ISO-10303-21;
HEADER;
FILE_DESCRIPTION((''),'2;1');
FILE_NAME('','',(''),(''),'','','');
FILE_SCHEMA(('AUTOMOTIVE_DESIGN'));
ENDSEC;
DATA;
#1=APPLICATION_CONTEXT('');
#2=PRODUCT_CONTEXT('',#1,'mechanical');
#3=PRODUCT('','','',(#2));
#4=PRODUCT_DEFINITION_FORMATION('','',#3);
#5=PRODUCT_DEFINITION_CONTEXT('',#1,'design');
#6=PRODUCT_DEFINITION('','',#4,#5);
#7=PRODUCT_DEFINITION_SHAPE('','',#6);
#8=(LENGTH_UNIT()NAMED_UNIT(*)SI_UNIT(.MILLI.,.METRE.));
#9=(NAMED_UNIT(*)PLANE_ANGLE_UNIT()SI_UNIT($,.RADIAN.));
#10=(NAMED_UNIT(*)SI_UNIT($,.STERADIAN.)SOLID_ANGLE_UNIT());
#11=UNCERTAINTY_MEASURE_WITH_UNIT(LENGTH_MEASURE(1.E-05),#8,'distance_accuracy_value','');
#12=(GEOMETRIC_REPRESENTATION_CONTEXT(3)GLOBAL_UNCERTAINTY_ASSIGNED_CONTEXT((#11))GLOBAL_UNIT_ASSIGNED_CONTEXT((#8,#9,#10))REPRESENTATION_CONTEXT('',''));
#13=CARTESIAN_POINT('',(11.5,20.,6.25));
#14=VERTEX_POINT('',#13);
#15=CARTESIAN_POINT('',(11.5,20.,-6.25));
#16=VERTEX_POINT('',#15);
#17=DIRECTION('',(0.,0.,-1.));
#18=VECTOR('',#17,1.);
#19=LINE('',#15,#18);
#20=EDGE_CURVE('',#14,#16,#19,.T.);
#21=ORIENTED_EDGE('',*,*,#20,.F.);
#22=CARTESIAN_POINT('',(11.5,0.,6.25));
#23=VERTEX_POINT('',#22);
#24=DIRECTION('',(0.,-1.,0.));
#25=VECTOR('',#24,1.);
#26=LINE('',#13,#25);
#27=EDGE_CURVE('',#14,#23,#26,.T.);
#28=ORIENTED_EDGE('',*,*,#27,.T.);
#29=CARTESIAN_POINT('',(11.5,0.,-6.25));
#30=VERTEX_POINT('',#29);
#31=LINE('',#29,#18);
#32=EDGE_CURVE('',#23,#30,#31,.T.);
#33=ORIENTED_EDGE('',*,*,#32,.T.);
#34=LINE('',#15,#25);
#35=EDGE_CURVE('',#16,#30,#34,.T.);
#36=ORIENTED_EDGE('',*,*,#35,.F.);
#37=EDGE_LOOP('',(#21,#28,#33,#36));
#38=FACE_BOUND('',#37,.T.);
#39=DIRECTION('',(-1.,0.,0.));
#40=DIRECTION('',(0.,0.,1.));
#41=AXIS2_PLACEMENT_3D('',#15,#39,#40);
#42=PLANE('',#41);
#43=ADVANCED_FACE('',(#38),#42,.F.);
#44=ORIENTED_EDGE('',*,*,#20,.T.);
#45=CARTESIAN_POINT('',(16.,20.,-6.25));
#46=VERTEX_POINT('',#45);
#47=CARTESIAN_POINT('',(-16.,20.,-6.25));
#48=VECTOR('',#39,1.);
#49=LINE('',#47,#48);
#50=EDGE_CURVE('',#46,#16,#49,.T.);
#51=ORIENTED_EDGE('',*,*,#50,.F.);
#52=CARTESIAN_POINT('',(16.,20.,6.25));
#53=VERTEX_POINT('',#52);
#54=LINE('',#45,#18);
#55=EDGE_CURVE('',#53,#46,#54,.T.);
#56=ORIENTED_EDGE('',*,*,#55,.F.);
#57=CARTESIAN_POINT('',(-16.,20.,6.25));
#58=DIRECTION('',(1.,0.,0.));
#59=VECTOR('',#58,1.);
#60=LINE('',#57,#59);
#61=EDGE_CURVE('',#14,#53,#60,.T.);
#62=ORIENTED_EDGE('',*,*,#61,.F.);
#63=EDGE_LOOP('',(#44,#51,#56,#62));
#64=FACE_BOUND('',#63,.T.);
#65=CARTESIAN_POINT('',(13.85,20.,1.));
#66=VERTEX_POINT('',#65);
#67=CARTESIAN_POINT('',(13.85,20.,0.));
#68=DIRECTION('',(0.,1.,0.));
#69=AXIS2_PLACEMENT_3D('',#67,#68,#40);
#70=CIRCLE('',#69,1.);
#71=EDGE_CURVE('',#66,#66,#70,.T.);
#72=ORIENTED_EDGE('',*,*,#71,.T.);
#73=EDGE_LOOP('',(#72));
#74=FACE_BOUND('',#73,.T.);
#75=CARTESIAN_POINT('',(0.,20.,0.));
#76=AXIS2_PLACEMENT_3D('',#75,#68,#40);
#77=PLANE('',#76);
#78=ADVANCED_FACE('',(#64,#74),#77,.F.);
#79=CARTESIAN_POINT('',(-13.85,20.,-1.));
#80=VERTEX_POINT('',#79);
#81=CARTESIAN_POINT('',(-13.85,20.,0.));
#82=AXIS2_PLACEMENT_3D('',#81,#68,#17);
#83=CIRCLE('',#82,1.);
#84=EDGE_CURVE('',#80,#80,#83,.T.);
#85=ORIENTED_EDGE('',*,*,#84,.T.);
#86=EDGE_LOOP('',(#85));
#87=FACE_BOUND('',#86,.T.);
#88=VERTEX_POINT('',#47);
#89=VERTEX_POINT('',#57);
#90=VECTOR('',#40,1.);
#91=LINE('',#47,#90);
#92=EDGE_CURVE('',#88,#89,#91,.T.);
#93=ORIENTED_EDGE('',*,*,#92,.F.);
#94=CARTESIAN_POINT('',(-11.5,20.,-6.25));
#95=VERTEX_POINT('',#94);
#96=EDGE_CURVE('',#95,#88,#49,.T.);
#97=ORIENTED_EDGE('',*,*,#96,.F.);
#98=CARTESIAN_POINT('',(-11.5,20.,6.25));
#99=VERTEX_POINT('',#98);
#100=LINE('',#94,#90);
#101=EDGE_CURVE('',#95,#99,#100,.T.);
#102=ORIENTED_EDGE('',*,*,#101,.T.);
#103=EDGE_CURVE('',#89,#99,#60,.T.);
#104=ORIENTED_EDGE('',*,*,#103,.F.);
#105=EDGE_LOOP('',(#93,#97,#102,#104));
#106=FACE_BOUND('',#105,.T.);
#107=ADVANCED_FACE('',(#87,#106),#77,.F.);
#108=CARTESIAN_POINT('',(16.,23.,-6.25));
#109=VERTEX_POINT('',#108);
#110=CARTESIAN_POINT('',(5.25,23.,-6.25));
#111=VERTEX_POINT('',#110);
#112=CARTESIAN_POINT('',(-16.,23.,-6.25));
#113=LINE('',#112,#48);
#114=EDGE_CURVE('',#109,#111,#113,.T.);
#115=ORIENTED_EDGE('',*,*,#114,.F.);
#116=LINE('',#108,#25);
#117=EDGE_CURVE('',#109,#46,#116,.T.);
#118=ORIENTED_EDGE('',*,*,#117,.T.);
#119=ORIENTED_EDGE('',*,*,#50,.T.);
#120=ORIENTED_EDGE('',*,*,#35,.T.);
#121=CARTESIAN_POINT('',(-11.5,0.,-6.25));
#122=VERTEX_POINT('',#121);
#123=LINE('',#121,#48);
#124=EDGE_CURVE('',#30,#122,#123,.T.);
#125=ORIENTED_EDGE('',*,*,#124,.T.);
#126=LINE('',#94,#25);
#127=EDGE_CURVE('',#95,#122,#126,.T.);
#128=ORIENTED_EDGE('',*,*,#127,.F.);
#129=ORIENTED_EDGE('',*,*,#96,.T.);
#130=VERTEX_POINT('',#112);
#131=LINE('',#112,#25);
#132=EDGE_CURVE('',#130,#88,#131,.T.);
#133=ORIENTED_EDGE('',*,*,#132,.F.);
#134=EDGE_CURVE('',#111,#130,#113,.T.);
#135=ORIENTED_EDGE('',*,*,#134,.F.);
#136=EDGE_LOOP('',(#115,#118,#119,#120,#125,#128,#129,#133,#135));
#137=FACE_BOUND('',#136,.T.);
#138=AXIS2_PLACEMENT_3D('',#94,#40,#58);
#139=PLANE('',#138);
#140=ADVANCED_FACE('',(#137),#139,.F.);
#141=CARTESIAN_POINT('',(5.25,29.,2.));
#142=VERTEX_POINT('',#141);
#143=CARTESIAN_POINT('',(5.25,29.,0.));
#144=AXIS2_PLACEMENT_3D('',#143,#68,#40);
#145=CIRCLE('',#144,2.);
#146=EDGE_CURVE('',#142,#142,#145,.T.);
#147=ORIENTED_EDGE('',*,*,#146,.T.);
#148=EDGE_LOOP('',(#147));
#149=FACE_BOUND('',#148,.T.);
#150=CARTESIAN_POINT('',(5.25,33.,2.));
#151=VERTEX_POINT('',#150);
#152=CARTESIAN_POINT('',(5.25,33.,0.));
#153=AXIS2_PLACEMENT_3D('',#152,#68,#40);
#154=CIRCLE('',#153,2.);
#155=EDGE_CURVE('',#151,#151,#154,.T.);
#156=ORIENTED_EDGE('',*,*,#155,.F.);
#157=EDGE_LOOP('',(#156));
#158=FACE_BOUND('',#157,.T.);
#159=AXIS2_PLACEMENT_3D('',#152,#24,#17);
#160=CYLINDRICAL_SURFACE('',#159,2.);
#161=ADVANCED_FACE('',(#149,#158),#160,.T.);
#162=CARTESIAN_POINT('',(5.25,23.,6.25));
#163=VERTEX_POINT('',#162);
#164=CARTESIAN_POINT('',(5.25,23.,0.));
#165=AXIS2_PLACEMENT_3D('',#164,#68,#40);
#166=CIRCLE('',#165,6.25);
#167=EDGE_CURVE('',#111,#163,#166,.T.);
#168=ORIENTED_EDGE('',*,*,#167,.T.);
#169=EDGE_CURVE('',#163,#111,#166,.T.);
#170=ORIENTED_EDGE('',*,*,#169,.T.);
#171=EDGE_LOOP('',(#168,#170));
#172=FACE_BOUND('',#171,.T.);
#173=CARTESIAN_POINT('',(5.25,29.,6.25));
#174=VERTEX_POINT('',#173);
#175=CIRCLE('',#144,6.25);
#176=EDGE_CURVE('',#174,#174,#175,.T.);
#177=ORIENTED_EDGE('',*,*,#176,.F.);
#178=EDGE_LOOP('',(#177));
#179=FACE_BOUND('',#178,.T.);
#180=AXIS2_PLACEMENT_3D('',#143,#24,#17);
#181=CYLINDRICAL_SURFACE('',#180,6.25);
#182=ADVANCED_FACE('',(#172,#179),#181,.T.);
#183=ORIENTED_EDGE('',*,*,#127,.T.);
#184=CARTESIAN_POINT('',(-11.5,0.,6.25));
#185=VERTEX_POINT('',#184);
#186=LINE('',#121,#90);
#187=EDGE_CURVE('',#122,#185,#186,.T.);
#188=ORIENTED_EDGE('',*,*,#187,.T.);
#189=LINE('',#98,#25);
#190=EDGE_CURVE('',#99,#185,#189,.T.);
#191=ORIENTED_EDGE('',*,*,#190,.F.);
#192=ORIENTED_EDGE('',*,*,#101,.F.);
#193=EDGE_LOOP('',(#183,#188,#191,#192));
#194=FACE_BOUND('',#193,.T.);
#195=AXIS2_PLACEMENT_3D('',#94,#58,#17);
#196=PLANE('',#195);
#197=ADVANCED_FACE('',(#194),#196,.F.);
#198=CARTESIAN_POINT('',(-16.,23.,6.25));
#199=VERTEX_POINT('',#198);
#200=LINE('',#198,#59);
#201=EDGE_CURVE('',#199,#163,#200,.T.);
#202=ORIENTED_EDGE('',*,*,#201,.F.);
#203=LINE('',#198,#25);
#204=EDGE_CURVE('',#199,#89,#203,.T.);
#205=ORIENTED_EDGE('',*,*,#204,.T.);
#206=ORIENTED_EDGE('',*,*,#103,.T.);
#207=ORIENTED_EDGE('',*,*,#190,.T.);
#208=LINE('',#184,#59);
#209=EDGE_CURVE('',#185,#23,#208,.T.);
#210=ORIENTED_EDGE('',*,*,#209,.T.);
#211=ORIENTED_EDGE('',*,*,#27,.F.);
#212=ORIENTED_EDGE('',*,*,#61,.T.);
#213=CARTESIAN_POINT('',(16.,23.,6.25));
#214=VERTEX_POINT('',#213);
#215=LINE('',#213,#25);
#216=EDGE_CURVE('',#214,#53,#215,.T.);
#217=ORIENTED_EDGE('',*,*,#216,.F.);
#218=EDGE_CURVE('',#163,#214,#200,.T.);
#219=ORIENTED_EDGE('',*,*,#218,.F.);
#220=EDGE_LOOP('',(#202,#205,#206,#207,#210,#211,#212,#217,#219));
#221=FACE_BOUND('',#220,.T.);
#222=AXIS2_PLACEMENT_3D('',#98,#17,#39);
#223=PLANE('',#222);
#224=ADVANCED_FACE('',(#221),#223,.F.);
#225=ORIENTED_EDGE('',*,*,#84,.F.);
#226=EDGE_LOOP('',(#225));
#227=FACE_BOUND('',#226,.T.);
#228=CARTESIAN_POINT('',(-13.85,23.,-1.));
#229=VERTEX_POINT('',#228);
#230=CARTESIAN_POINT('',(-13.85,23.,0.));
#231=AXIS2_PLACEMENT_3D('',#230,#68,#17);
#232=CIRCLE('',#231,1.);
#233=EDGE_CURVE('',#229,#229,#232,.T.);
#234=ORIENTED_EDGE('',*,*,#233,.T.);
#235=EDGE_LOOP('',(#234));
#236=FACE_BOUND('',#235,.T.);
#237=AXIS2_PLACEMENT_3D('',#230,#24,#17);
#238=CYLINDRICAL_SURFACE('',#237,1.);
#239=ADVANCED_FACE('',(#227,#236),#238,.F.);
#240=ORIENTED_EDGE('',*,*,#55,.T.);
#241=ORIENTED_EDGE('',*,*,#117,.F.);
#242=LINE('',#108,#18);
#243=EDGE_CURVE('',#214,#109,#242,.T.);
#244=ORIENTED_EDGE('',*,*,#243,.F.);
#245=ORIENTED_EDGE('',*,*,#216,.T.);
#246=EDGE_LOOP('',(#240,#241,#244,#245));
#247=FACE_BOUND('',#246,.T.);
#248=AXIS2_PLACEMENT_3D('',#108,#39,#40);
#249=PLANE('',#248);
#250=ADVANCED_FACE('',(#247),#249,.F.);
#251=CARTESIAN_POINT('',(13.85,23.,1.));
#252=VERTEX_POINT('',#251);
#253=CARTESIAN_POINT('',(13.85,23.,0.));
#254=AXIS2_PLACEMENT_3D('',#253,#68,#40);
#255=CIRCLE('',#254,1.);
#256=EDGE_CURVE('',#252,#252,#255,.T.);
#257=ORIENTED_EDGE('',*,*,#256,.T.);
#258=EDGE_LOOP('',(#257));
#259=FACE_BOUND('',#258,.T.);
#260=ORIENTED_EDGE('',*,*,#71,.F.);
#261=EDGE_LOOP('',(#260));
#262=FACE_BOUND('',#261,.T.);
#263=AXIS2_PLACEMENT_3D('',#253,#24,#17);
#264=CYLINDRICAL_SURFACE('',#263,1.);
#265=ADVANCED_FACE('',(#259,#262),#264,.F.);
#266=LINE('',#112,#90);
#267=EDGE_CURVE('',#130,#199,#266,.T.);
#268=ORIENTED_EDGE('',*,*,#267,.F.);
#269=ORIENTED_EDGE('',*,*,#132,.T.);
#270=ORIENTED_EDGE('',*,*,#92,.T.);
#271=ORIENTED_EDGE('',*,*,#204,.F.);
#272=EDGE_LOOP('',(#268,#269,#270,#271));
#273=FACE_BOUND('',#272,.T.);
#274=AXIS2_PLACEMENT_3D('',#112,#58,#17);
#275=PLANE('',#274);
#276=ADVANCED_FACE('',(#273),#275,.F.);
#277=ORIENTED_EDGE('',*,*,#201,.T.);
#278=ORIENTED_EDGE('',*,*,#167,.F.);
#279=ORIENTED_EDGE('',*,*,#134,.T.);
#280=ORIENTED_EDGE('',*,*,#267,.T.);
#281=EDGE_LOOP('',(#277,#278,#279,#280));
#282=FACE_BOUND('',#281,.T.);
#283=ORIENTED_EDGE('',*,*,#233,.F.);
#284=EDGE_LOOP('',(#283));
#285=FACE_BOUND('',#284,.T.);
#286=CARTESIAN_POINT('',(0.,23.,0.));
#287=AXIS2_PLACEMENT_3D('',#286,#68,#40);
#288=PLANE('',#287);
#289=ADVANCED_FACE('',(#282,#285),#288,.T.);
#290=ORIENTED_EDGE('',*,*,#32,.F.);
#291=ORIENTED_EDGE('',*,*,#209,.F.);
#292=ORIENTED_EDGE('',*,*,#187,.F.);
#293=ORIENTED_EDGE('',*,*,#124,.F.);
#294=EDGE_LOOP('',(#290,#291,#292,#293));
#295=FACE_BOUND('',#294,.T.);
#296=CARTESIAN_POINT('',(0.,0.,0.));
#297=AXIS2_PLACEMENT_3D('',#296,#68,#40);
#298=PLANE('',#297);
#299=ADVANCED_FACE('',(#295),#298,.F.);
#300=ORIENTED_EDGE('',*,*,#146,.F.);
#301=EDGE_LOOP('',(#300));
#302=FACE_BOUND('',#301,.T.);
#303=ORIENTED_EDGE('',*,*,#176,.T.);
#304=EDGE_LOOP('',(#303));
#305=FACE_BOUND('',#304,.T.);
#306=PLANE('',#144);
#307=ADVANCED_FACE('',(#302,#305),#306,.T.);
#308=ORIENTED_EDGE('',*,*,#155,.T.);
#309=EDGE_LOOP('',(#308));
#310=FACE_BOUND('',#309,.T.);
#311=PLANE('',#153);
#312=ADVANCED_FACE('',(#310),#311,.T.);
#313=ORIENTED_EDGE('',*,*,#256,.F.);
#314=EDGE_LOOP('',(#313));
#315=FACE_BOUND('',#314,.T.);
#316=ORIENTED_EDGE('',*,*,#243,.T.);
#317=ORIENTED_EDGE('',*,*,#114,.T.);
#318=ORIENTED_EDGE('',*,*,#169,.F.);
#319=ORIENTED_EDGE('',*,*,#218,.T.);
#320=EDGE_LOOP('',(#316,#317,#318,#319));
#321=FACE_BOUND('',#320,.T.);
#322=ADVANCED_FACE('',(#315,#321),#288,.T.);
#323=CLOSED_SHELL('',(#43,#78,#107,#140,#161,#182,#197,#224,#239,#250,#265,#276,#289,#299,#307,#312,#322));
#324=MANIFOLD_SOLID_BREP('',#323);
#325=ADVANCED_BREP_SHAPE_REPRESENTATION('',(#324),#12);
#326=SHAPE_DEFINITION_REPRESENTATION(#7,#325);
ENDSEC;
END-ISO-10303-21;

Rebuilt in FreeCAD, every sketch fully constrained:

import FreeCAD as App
import Part
import Sketcher
from FreeCAD import Vector


def add_polygon(sketch, points):
    """Adds a closed chain of lines whose ends are joined by coincident constraints."""
    first, n = sketch.GeometryCount, len(points)
    for a, b in zip(points, points[1:] + points[:1]):
        sketch.addGeometry(Part.LineSegment(App.Vector(*a, 0), App.Vector(*b, 0)), False)
    for i in range(n):
        sketch.addConstraint(Sketcher.Constraint("Coincident", first + i, 2, first + (i + 1) % n, 1))

doc = App.newDocument("Part")
body = doc.addObject("PartDesign::Body", "Body")

# Sketch on XZ plane
sketch1 = body.newObject("Sketcher::SketchObject", "Sketch")
sketch1.AttachmentSupport = (doc.getObject("XZ_Plane"), [""])
sketch1.MapMode = "FlatFace"
add_polygon(sketch1, [(-12, -6), (-12, 6), (12, 6), (12, -6)])  # lines 0-3
sketch1.addConstraint(Sketcher.Constraint("Vertical", 0))
sketch1.addConstraint(Sketcher.Constraint("Horizontal", 1))
sketch1.addConstraint(Sketcher.Constraint("Vertical", 2))
sketch1.addConstraint(Sketcher.Constraint("Horizontal", 3))
sketch1.addConstraint(Sketcher.Constraint("Symmetric", 0, 2, 2, 2, -1, 1))
sketch1.addConstraint(Sketcher.Constraint("DistanceX", 1, 1, 1, 2, 23.0))
sketch1.addConstraint(Sketcher.Constraint("DistanceY", 0, 1, 0, 2, 12.5))
pad1 = body.newObject("PartDesign::Pad", "Pad")
pad1.Profile = sketch1
pad1.Length = 20
pad1.Reversed = True

# Sketch on XZ plane
sketch2 = body.newObject("Sketcher::SketchObject", "Sketch001")
sketch2.AttachmentSupport = (doc.getObject("XZ_Plane"), [""])
sketch2.MapMode = "FlatFace"
sketch2.AttachmentOffset = App.Placement(Vector(0, 0, -20), App.Rotation())
add_polygon(sketch2, [(-16, -6.2), (-16, 6.2), (16, 6.2), (16, -6.2)])  # lines 0-3
sketch2.addGeometry(Part.Circle(Vector(-13.8, 0, 0), Vector(0, 0, 1), 1), False)  # 4
sketch2.addGeometry(Part.Circle(Vector(13.8, 0, 0), Vector(0, 0, 1), 1), False)  # 5
sketch2.addConstraint(Sketcher.Constraint("Vertical", 0))
sketch2.addConstraint(Sketcher.Constraint("Horizontal", 1))
sketch2.addConstraint(Sketcher.Constraint("Vertical", 2))
sketch2.addConstraint(Sketcher.Constraint("Horizontal", 3))
sketch2.addConstraint(Sketcher.Constraint("Equal", 4, 5))
sketch2.addConstraint(Sketcher.Constraint("Symmetric", 4, 3, 5, 3, -1, 1))
sketch2.addConstraint(Sketcher.Constraint("Symmetric", 0, 2, 2, 2, -1, 1))
sketch2.addConstraint(Sketcher.Constraint("PointOnObject", 4, 3, -1))
sketch2.addConstraint(Sketcher.Constraint("Diameter", 4, 2.0))
sketch2.addConstraint(Sketcher.Constraint("DistanceX", 1, 1, 1, 2, 32.0))
sketch2.addConstraint(Sketcher.Constraint("DistanceY", 0, 1, 0, 2, 12.5))
sketch2.addConstraint(Sketcher.Constraint("DistanceX", 4, 3, 5, 3, 27.7))
pad2 = body.newObject("PartDesign::Pad", "Pad001")
pad2.Profile = sketch2
pad2.Length = 3
pad2.Reversed = True

# Sketch on XZ plane
sketch3 = body.newObject("Sketcher::SketchObject", "Sketch002")
sketch3.AttachmentSupport = (doc.getObject("XZ_Plane"), [""])
sketch3.MapMode = "FlatFace"
sketch3.AttachmentOffset = App.Placement(Vector(0, 0, -23), App.Rotation())
sketch3.addGeometry(Part.Circle(Vector(5, 0, 0), Vector(0, 0, 1), 6), False)
sketch3.addConstraint(Sketcher.Constraint("PointOnObject", 0, 3, -1))
sketch3.addConstraint(Sketcher.Constraint("Diameter", 0, 12.5))
sketch3.addConstraint(Sketcher.Constraint("DistanceX", -1, 1, 0, 3, 5.25))
pad3 = body.newObject("PartDesign::Pad", "Pad002")
pad3.Profile = sketch3
pad3.Length = 6
pad3.Reversed = True

# Sketch on XZ plane
sketch4 = body.newObject("Sketcher::SketchObject", "Sketch003")
sketch4.AttachmentSupport = (doc.getObject("XZ_Plane"), [""])
sketch4.MapMode = "FlatFace"
sketch4.AttachmentOffset = App.Placement(Vector(0, 0, -29), App.Rotation())
sketch4.addGeometry(Part.Circle(Vector(5.2, 0, 0), Vector(0, 0, 1), 2), False)
sketch4.addConstraint(Sketcher.Constraint("PointOnObject", 0, 3, -1))
sketch4.addConstraint(Sketcher.Constraint("Diameter", 0, 4.0))
sketch4.addConstraint(Sketcher.Constraint("DistanceX", -1, 1, 0, 3, 5.25))
pad4 = body.newObject("PartDesign::Pad", "Pad003")
pad4.Profile = sketch4
pad4.Length = 4
pad4.Reversed = True

doc.recompute()
